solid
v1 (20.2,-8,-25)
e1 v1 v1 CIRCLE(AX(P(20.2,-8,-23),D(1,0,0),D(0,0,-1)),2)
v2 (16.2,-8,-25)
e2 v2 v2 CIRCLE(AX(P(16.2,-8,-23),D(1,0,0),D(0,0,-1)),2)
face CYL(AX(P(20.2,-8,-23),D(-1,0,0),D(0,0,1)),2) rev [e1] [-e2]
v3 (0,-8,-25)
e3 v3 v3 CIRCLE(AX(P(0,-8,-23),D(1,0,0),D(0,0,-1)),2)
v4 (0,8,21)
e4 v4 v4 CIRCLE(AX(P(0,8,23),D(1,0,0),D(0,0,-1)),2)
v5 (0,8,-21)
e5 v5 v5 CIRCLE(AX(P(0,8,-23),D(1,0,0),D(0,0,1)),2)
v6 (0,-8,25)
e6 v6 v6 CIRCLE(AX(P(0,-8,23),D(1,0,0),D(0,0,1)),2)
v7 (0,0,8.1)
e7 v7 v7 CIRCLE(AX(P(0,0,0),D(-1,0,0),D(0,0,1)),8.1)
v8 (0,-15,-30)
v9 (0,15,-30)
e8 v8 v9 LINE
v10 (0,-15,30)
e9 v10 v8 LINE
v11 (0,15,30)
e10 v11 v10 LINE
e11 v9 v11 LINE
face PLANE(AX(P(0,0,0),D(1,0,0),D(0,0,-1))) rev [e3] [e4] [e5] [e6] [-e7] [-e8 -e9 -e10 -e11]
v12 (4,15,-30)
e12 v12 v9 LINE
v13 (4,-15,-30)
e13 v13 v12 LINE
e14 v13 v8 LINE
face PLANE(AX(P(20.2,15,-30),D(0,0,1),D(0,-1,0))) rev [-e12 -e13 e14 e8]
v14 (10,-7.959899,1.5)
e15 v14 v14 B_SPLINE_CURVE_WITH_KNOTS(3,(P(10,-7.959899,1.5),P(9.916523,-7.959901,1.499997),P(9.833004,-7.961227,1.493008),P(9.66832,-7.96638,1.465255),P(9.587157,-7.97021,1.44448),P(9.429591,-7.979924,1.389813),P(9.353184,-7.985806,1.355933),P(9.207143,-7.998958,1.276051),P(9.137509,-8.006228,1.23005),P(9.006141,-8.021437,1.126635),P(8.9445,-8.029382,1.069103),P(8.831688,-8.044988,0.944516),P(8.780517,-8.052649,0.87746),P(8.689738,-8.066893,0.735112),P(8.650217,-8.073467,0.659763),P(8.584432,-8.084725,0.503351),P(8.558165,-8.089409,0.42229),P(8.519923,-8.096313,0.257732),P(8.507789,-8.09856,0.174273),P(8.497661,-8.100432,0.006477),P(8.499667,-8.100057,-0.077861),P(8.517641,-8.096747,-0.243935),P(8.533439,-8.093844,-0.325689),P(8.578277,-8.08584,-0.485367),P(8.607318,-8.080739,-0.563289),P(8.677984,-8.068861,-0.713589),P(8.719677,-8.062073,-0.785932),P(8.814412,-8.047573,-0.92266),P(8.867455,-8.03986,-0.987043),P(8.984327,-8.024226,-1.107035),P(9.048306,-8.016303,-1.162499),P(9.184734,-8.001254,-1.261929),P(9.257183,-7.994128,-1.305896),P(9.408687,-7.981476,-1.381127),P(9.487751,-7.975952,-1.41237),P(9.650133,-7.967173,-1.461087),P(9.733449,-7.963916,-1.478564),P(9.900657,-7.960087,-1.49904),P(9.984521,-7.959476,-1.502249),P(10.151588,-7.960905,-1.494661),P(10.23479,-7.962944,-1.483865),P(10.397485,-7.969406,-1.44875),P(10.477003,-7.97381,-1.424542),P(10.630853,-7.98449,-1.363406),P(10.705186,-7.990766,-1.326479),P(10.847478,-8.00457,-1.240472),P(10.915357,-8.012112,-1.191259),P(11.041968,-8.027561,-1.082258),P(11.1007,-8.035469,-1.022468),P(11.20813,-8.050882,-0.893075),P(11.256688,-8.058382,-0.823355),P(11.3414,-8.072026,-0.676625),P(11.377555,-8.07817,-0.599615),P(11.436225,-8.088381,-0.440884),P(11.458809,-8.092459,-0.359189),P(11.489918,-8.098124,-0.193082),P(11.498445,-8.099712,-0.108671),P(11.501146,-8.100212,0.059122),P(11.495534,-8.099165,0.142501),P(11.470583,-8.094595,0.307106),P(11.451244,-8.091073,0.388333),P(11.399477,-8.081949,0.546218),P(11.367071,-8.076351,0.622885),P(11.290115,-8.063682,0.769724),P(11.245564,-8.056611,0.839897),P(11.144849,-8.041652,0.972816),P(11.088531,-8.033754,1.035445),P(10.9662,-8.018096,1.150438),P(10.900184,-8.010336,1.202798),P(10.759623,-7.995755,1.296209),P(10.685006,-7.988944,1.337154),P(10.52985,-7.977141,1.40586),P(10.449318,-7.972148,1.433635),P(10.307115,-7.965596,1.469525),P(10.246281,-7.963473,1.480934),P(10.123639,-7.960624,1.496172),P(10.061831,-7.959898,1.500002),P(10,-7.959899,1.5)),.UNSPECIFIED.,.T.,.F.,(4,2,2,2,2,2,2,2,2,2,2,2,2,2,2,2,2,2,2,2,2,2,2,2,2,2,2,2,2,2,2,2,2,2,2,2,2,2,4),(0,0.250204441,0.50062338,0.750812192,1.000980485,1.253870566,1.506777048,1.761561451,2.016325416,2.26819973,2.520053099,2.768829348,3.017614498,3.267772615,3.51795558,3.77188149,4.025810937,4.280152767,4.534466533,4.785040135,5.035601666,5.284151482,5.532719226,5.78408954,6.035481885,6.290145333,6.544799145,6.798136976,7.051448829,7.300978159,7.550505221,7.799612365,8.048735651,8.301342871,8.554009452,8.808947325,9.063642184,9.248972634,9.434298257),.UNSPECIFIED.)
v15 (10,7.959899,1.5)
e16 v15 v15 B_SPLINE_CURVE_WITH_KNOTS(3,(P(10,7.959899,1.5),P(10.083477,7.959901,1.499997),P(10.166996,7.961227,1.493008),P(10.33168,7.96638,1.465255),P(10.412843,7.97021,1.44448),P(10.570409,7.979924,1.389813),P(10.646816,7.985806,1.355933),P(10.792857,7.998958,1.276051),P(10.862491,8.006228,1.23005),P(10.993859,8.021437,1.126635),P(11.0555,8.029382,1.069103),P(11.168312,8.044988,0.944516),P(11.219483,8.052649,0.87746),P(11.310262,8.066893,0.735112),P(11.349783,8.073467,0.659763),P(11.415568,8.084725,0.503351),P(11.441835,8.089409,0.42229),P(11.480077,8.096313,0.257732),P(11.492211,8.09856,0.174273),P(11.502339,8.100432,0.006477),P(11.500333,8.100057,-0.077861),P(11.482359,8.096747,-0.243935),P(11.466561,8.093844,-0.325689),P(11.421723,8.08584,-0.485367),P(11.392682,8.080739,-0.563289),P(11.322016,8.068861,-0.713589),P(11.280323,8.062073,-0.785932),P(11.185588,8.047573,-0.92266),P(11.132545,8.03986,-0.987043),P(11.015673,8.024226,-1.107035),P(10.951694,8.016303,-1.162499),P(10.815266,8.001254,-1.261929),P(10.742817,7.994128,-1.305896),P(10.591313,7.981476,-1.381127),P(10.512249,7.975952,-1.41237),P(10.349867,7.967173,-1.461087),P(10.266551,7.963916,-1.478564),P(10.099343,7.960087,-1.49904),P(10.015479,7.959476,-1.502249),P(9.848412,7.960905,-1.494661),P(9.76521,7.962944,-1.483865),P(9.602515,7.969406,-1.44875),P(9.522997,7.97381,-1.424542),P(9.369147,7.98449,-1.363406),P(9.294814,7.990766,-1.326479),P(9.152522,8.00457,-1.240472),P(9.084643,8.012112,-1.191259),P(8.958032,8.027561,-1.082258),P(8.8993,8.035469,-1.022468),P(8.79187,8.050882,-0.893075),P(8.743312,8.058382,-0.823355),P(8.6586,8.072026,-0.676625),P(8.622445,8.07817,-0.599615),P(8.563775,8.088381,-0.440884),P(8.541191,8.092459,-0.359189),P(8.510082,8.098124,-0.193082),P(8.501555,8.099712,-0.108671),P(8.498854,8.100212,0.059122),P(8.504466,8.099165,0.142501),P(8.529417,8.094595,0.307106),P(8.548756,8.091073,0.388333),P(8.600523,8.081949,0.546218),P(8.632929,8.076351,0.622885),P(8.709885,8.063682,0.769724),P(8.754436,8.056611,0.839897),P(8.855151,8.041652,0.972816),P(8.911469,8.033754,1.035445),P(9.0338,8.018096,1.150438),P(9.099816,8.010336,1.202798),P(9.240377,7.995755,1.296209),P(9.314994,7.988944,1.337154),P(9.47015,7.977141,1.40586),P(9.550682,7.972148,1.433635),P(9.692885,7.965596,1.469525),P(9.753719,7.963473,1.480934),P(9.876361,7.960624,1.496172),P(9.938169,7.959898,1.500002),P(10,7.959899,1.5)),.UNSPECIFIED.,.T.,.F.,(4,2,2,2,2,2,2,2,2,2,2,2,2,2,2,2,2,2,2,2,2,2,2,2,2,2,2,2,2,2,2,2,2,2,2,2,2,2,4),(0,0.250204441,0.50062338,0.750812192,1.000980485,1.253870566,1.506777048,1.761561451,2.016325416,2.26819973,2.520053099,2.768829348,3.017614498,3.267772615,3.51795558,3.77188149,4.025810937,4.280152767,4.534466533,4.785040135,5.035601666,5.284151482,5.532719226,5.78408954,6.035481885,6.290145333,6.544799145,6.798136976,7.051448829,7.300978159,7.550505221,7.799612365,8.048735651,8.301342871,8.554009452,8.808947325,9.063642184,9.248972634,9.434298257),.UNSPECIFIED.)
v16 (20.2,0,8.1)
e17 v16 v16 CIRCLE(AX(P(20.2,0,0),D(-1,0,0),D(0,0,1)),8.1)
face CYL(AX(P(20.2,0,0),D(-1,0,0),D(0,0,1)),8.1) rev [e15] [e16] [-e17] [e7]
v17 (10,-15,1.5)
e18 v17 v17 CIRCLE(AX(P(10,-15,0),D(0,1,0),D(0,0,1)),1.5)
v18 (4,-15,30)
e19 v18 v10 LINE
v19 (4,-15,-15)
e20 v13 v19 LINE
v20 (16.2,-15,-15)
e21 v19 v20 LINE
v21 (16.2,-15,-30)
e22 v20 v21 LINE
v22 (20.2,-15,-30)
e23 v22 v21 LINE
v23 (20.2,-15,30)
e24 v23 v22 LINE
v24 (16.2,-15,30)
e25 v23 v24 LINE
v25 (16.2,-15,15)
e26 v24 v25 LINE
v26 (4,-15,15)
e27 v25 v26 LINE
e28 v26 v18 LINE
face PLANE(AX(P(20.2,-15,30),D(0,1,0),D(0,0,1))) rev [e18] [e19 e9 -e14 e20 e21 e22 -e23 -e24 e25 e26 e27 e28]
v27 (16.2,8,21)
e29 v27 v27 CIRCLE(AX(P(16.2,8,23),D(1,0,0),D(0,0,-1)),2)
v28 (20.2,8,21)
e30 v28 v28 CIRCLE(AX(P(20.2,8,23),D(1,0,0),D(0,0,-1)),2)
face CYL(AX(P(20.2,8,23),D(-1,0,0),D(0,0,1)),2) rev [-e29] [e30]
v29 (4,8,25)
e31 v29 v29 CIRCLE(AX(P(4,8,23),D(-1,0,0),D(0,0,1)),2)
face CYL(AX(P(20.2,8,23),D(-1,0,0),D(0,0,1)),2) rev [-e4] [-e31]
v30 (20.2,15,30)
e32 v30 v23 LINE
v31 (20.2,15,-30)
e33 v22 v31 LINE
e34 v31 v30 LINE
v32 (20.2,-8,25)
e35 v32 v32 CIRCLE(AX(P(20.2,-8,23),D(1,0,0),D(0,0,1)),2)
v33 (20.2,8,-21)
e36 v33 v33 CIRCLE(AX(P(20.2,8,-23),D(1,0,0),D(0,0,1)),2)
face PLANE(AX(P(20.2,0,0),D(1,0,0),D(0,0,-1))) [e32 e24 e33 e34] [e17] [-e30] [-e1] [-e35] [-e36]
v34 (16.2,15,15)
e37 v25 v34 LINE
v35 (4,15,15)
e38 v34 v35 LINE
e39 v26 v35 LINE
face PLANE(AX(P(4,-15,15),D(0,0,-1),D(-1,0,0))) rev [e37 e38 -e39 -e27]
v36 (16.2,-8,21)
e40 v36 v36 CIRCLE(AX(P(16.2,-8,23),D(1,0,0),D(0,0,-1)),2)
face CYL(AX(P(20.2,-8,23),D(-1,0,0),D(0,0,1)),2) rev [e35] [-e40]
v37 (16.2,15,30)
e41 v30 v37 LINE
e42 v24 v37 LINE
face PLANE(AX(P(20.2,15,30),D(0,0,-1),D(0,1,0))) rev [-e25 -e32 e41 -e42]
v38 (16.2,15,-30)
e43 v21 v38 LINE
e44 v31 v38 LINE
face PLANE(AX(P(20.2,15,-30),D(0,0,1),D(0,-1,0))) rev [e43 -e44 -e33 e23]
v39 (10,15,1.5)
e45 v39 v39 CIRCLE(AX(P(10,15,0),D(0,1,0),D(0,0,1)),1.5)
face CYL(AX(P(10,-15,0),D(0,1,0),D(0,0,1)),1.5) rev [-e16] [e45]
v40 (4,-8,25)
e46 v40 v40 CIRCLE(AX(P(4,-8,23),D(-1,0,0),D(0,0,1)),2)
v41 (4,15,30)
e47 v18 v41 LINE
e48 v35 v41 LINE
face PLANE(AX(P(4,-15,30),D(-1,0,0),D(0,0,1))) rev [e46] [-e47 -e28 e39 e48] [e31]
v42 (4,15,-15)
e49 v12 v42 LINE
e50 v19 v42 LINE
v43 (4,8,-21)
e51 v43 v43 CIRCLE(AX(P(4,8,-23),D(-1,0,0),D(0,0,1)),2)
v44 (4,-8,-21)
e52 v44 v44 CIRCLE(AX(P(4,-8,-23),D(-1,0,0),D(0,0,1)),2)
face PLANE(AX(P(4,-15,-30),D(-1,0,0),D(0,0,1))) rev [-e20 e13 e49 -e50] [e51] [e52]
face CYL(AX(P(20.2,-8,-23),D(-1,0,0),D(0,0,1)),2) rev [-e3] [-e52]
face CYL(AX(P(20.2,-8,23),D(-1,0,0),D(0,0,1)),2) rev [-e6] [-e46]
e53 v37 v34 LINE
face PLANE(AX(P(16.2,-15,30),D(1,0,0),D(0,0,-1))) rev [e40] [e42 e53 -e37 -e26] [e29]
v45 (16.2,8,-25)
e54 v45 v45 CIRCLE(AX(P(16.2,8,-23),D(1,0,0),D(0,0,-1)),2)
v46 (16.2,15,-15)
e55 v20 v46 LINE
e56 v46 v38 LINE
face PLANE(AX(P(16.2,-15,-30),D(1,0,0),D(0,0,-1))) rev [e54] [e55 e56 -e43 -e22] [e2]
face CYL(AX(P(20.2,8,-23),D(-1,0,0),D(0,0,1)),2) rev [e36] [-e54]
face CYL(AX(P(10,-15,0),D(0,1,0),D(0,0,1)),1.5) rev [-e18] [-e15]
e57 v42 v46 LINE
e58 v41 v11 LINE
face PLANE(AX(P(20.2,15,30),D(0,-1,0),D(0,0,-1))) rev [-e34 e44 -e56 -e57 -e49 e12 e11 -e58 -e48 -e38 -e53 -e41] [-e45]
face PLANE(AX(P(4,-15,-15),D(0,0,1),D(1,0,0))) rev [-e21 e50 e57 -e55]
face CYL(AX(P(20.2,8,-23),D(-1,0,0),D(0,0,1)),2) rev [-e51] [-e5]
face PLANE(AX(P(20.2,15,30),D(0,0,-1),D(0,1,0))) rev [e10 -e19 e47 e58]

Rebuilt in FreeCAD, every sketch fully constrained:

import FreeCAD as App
import Part
import Sketcher
from FreeCAD import Vector


def add_polygon(sketch, points):
    """Adds a closed chain of lines whose ends are joined by coincident constraints."""
    first, n = sketch.GeometryCount, len(points)
    for a, b in zip(points, points[1:] + points[:1]):
        sketch.addGeometry(Part.LineSegment(App.Vector(*a, 0), App.Vector(*b, 0)), False)
    for i in range(n):
        sketch.addConstraint(Sketcher.Constraint("Coincident", first + i, 2, first + (i + 1) % n, 1))

doc = App.newDocument("Part")
body = doc.addObject("PartDesign::Body", "Body")

sketch1 = body.newObject("Sketcher::SketchObject", "Sketch")
sketch1.AttachmentSupport = (doc.getObject("YZ_Plane"), [""])
sketch1.MapMode = "FlatFace"
add_polygon(sketch1, [(15, 30), (-15, 30), (-15, -30), (15, -30)])
sketch1.addGeometry(Part.Circle(Vector(-8, 23, 0), Vector(0, 0, 1), 2), False)
sketch1.addGeometry(Part.Circle(Vector(-8, -23, 0), Vector(0, 0, 1), 2), False)
sketch1.addGeometry(Part.Circle(Vector(8, 23, 0), Vector(0, 0, 1), 2), False)
sketch1.addGeometry(Part.Circle(Vector(8, -23, 0), Vector(0, 0, 1), 2), False)
sketch1.addConstraint([
    Sketcher.Constraint("Horizontal", 0),
    Sketcher.Constraint("Vertical", 1),
    Sketcher.Constraint("Horizontal", 2),
    Sketcher.Constraint("Vertical", 3),
    Sketcher.Constraint("Equal", 4, 5),
    Sketcher.Constraint("Equal", 5, 6),
    Sketcher.Constraint("Equal", 6, 7),
    Sketcher.Constraint("Symmetric", 5, 3, 6, 3, -1, 1),
    Sketcher.Constraint("Symmetric", 4, 3, 7, 3, -1, 1),
    Sketcher.Constraint("Symmetric", 0, 2, 2, 2, -1, 1),
    Sketcher.Constraint("Symmetric", 4, 3, 6, 3, -2),
    Sketcher.Constraint("Diameter", 4, 4.0),
    Sketcher.Constraint("DistanceX", 0, 2, 0, 1, 30.0),
    Sketcher.Constraint("DistanceY", 1, 2, 1, 1, 60.0),
    Sketcher.Constraint("DistanceX", 4, 3, -1, 1, 8.0),
    Sketcher.Constraint("DistanceY", -1, 1, 4, 3, 23.0),
])
pad1 = body.newObject("PartDesign::Pad", "Pad")
pad1.Profile = sketch1
pad1.Length = 20.2

sketch2 = body.newObject("Sketcher::SketchObject", "Sketch001")
sketch2.AttachmentSupport = (doc.getObject("XZ_Plane"), [""])
sketch2.MapMode = "FlatFace"
sketch2.AttachmentOffset = App.Placement(Vector(0, 0, -15), App.Rotation())
add_polygon(sketch2, [(4, -30), (4, -15), (16, -15), (16, -30)])
add_polygon(sketch2, [(4, 15), (4, 30), (16, 30), (16, 15)])
sketch2.addConstraint([
    Sketcher.Constraint("Vertical", 0),
    Sketcher.Constraint("Horizontal", 1),
    Sketcher.Constraint("Vertical", 2),
    Sketcher.Constraint("Horizontal", 3),
    Sketcher.Constraint("Vertical", 4),
    Sketcher.Constraint("Horizontal", 5),
    Sketcher.Constraint("Vertical", 6),
    Sketcher.Constraint("Horizontal", 7),
    Sketcher.Constraint("Symmetric", 3, 2, 4, 2, -1),
    Sketcher.Constraint("Symmetric", 1, 2, 6, 2, -1),
    Sketcher.Constraint("DistanceY", 0, 1, 0, 2, 15.0),
    Sketcher.Constraint("DistanceX", 1, 1, 1, 2, 12.2),
    Sketcher.Constraint("DistanceX", -1, 1, 0, 2, 4.0),
    Sketcher.Constraint("DistanceY", 0, 2, -1, 1, 15.0),
])
pocket1 = body.newObject("PartDesign::Pocket", "Pocket")
pocket1.Profile = sketch2
pocket1.Type = "ThroughAll"
pocket1.Reversed = True

sketch3 = body.newObject("Sketcher::SketchObject", "Sketch002")
sketch3.AttachmentSupport = (doc.getObject("YZ_Plane"), [""])
sketch3.MapMode = "FlatFace"
sketch3.addGeometry(Part.Circle(Vector(0, 0, 0), Vector(0, 0, 1), 8), False)
sketch3.addConstraint([
    Sketcher.Constraint("Coincident", 0, 3, -1, 1),
    Sketcher.Constraint("Diameter", 0, 16.2),
])
pocket2 = body.newObject("PartDesign::Pocket", "Pocket001")
pocket2.Profile = sketch3
pocket2.Type = "ThroughAll"
pocket2.Reversed = True

sketch4 = body.newObject("Sketcher::SketchObject", "Sketch003")
sketch4.AttachmentSupport = (doc.getObject("XZ_Plane"), [""])
sketch4.MapMode = "FlatFace"
sketch4.AttachmentOffset = App.Placement(Vector(0, 0, -15), App.Rotation())
sketch4.addGeometry(Part.Circle(Vector(10, 0, 0), Vector(0, 0, 1), 1.5), False)
sketch4.addConstraint([
    Sketcher.Constraint("PointOnObject", 0, 3, -1),
    Sketcher.Constraint("Diameter", 0, 3.0),
    Sketcher.Constraint("DistanceX", -1, 1, 0, 3, 10.0),
])
pocket3 = body.newObject("PartDesign::Pocket", "Pocket002")
pocket3.Profile = sketch4
pocket3.Type = "ThroughAll"
pocket3.Reversed = True

doc.recompute()
